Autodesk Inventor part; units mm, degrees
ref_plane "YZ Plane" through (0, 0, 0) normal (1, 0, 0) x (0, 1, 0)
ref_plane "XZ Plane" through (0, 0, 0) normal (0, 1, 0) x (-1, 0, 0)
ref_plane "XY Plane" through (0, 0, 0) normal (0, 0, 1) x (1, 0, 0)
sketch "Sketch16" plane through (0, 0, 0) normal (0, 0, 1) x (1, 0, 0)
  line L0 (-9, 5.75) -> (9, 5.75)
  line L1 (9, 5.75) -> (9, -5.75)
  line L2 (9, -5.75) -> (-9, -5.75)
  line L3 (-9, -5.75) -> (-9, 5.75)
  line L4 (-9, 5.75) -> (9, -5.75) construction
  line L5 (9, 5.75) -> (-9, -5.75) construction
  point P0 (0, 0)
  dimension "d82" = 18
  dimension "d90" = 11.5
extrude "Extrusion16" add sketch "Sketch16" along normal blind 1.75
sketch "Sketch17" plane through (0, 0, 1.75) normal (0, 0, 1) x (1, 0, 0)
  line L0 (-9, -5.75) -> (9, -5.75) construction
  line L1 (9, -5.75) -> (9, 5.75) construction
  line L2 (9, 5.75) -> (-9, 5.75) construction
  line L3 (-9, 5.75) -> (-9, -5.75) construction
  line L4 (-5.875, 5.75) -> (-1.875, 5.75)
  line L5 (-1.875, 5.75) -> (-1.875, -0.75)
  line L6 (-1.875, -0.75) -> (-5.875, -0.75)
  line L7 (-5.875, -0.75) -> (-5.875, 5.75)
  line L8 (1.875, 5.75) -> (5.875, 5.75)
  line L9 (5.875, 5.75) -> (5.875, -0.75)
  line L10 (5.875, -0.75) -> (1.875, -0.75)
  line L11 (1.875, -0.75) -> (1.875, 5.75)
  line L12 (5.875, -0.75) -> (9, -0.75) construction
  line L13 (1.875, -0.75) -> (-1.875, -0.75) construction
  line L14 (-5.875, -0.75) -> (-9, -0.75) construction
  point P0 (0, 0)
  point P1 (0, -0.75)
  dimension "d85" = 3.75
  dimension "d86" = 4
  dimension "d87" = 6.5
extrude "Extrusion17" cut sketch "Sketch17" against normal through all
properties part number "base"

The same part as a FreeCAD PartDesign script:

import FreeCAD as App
import Part
import Sketcher
from FreeCAD import Vector

doc = App.newDocument("Part")
params = doc.addObject("Spreadsheet::Sheet", "Params")
for row, (alias, value) in enumerate([
    ("sketch1_width", "18 mm"),
    ("sketch1_height", "11.5 mm"),
    ("pad1_length", "1.75 mm"),
    ("sketch2_width", "4 mm"),
    ("sketch2_height", "6.5 mm"),
], start=1):
    params.set(f"A{row}", alias)
    params.set(f"B{row}", "=" + value)
    params.setAlias(f"B{row}", alias)

body = doc.addObject("PartDesign::Body", "Body")

sketch1 = doc.addObject("Sketcher::SketchObject", "Sketch")
body.addObject(sketch1)
sketch1.AttachmentSupport = (doc.XY_Plane, [""])
sketch1.MapMode = "FlatFace"
sketch1.addGeometry(Part.LineSegment(Vector(9, 6, 0), Vector(-9, 6, 0)), False)
sketch1.addGeometry(Part.LineSegment(Vector(-9, 6, 0), Vector(-9, -6, 0)), False)
sketch1.addGeometry(Part.LineSegment(Vector(-9, -6, 0), Vector(9, -6, 0)), False)
sketch1.addGeometry(Part.LineSegment(Vector(9, -6, 0), Vector(9, 6, 0)), False)
sketch1.addConstraint(Sketcher.Constraint("Coincident", 0, 2, 1, 1))
sketch1.addConstraint(Sketcher.Constraint("Coincident", 1, 2, 2, 1))
sketch1.addConstraint(Sketcher.Constraint("Coincident", 2, 2, 3, 1))
sketch1.addConstraint(Sketcher.Constraint("Coincident", 3, 2, 0, 1))
sketch1.addConstraint(Sketcher.Constraint("Horizontal", 0))
sketch1.addConstraint(Sketcher.Constraint("Vertical", 1))
sketch1.addConstraint(Sketcher.Constraint("Horizontal", 2))
sketch1.addConstraint(Sketcher.Constraint("Vertical", 3))
sketch1.addConstraint(Sketcher.Constraint("Symmetric", 0, 2, 2, 2, -1, 1))
sketch1.addConstraint(Sketcher.Constraint("DistanceX", 0, 2, 0, 1, 18.0))
sketch1.addConstraint(Sketcher.Constraint("DistanceY", 1, 2, 1, 1, 11.5))
sketch1.setExpression("Constraints[9]", "Params.sketch1_width")
sketch1.setExpression("Constraints[10]", "Params.sketch1_height")
pad1 = doc.addObject("PartDesign::Pad", "Pad")
body.addObject(pad1)
pad1.Profile = sketch1
pad1.setExpression("Length", "Params.pad1_length")

sketch2 = doc.addObject("Sketcher::SketchObject", "Sketch001")
body.addObject(sketch2)
sketch2.AttachmentSupport = (doc.XY_Plane, [""])
sketch2.MapMode = "FlatFace"
sketch2.AttachmentOffset = App.Placement(Vector(0, 0, 1.75), App.Rotation())
sketch2.addGeometry(Part.LineSegment(Vector(-1.9, 5.8, 0), Vector(-5.9, 5.8, 0)), False)
sketch2.addGeometry(Part.LineSegment(Vector(-5.9, 5.8, 0), Vector(-5.9, -0.8, 0)), False)
sketch2.addGeometry(Part.LineSegment(Vector(-5.9, -0.8, 0), Vector(-1.9, -0.8, 0)), False)
sketch2.addGeometry(Part.LineSegment(Vector(-1.9, -0.8, 0), Vector(-1.9, 5.8, 0)), False)
sketch2.addGeometry(Part.LineSegment(Vector(5.9, 5.8, 0), Vector(1.9, 5.8, 0)), False)
sketch2.addGeometry(Part.LineSegment(Vector(1.9, 5.8, 0), Vector(1.9, -0.8, 0)), False)
sketch2.addGeometry(Part.LineSegment(Vector(1.9, -0.8, 0), Vector(5.9, -0.8, 0)), False)
sketch2.addGeometry(Part.LineSegment(Vector(5.9, -0.8, 0), Vector(5.9, 5.8, 0)), False)
sketch2.addConstraint(Sketcher.Constraint("Coincident", 0, 2, 1, 1))
sketch2.addConstraint(Sketcher.Constraint("Coincident", 1, 2, 2, 1))
sketch2.addConstraint(Sketcher.Constraint("Coincident", 2, 2, 3, 1))
sketch2.addConstraint(Sketcher.Constraint("Coincident", 3, 2, 0, 1))
sketch2.addConstraint(Sketcher.Constraint("Coincident", 4, 2, 5, 1))
sketch2.addConstraint(Sketcher.Constraint("Coincident", 5, 2, 6, 1))
sketch2.addConstraint(Sketcher.Constraint("Coincident", 6, 2, 7, 1))
sketch2.addConstraint(Sketcher.Constraint("Coincident", 7, 2, 4, 1))
sketch2.addConstraint(Sketcher.Constraint("Horizontal", 0))
sketch2.addConstraint(Sketcher.Constraint("Vertical", 1))
sketch2.addConstraint(Sketcher.Constraint("Horizontal", 2))
sketch2.addConstraint(Sketcher.Constraint("Vertical", 3))
sketch2.addConstraint(Sketcher.Constraint("Horizontal", 4))
sketch2.addConstraint(Sketcher.Constraint("Vertical", 5))
sketch2.addConstraint(Sketcher.Constraint("Horizontal", 6))
sketch2.addConstraint(Sketcher.Constraint("Vertical", 7))
sketch2.addConstraint(Sketcher.Constraint("Symmetric", 3, 2, 4, 2, -2))
sketch2.addConstraint(Sketcher.Constraint("Symmetric", 1, 2, 6, 2, -2))
sketch2.addConstraint(Sketcher.Constraint("DistanceX", 0, 2, 0, 1, 4.0))
sketch2.addConstraint(Sketcher.Constraint("DistanceY", 1, 2, 1, 1, 6.5))
sketch2.addConstraint(Sketcher.Constraint("DistanceX", 3, 2, 4, 2, 3.75))
sketch2.addConstraint(Sketcher.Constraint("DistanceY", -1, 1, 0, 2, 5.75))
sketch2.setExpression("Constraints[18]", "Params.sketch2_width")
sketch2.setExpression("Constraints[19]", "Params.sketch2_height")
pocket1 = doc.addObject("PartDesign::Pocket", "Pocket")
body.addObject(pocket1)
pocket1.Profile = sketch2
pocket1.Type = "ThroughAll"

doc.recompute()
